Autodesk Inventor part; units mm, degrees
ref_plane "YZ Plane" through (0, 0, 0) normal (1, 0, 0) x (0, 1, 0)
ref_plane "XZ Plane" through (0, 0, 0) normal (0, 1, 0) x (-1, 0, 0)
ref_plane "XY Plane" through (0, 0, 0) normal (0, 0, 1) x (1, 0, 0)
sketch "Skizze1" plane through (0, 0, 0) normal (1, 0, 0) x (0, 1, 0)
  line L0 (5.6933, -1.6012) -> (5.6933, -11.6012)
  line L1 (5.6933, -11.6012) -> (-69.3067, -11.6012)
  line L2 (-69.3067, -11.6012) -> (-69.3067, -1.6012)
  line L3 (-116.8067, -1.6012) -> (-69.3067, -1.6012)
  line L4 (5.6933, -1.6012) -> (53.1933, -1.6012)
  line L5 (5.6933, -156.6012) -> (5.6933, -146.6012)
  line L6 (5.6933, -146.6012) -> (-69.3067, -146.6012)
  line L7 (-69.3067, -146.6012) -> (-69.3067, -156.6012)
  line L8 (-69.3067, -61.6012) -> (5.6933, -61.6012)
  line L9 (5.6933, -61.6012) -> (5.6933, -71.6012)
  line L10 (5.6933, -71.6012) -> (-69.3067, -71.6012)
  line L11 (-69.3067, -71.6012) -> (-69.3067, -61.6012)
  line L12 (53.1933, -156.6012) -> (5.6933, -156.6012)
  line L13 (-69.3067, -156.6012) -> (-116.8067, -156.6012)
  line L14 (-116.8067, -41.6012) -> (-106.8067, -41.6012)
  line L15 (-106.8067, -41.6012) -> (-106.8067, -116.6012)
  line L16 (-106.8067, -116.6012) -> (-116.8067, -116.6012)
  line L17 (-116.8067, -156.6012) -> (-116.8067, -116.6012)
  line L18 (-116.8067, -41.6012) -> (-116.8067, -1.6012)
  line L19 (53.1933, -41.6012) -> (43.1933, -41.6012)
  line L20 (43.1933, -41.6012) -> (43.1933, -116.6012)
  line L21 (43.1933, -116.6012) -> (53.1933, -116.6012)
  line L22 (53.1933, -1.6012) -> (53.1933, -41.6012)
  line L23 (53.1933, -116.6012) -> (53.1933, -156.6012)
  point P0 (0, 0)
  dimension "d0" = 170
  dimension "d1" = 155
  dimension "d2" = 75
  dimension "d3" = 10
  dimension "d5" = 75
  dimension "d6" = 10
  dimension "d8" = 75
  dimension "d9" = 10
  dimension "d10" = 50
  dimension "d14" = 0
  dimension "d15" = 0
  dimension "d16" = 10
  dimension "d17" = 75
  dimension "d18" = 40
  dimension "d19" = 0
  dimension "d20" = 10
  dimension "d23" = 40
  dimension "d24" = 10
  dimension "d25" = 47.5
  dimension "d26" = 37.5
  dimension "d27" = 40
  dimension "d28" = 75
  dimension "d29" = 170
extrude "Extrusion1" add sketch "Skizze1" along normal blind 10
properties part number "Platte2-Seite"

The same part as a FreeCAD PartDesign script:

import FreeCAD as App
import Part
import Sketcher
from FreeCAD import Vector


def add_polygon(sketch, points):
    """Adds a closed chain of lines whose ends are joined by coincident constraints."""
    first, n = sketch.GeometryCount, len(points)
    for a, b in zip(points, points[1:] + points[:1]):
        sketch.addGeometry(Part.LineSegment(App.Vector(*a, 0), App.Vector(*b, 0)), False)
    for i in range(n):
        sketch.addConstraint(Sketcher.Constraint("Coincident", first + i, 2, first + (i + 1) % n, 1))

doc = App.newDocument("Part")
body = doc.addObject("PartDesign::Body", "Body")

sketch1 = body.newObject("Sketcher::SketchObject", "Sketch")
sketch1.AttachmentSupport = (doc.getObject("YZ_Plane"), [""])
sketch1.MapMode = "FlatFace"
add_polygon(sketch1, [(53.1933, -1.6012), (5.6933, -1.6012), (5.6933, -11.6012), (-69.3067, -11.6012), (-69.3067, -1.6012), (-116.8067, -1.6012), (-116.8067, -41.6012), (-106.8067, -41.6012), (-106.8067, -116.6012), (-116.8067, -116.6012), (-116.8067, -156.6012), (-69.3067, -156.6012), (-69.3067, -146.6012), (5.6933, -146.6012), (5.6933, -156.6012), (53.1933, -156.6012), (53.1933, -116.6012), (43.1933, -116.6012), (43.1933, -41.6012), (53.1933, -41.6012)])
add_polygon(sketch1, [(-69.3067, -71.6012), (-69.3067, -61.6012), (5.6933, -61.6012), (5.6933, -71.6012)])
sketch1.addConstraint([
    Sketcher.Constraint("Horizontal", 0),
    Sketcher.Constraint("Vertical", 1),
    Sketcher.Constraint("Horizontal", 2),
    Sketcher.Constraint("Vertical", 3),
    Sketcher.Constraint("Horizontal", 4),
    Sketcher.Constraint("Vertical", 5),
    Sketcher.Constraint("Horizontal", 6),
    Sketcher.Constraint("Vertical", 7),
    Sketcher.Constraint("Horizontal", 8),
    Sketcher.Constraint("Vertical", 9),
    Sketcher.Constraint("Horizontal", 10),
    Sketcher.Constraint("Vertical", 11),
    Sketcher.Constraint("Horizontal", 12),
    Sketcher.Constraint("Vertical", 13),
    Sketcher.Constraint("Horizontal", 14),
    Sketcher.Constraint("Vertical", 15),
    Sketcher.Constraint("Horizontal", 16),
    Sketcher.Constraint("Vertical", 17),
    Sketcher.Constraint("Horizontal", 18),
    Sketcher.Constraint("Vertical", 19),
    Sketcher.Constraint("Vertical", 20),
    Sketcher.Constraint("Horizontal", 21),
    Sketcher.Constraint("Vertical", 22),
    Sketcher.Constraint("Horizontal", 23),
    Sketcher.Constraint("Horizontal", 0, 2, 3, 2),
    Sketcher.Constraint("Horizontal", 10, 2, 13, 2),
    Sketcher.Constraint("Horizontal", 8, 2, 15, 2),
    Sketcher.Constraint("Horizontal", 6, 2, 17, 2),
    Sketcher.Constraint("Vertical", 5, 2, 8, 2),
    Sketcher.Constraint("Vertical", 3, 2, 10, 2),
    Sketcher.Constraint("Vertical", 1, 2, 12, 2),
    Sketcher.Constraint("Vertical", 15, 2, 18, 2),
    Sketcher.Constraint("Vertical", 11, 2, 20, 2),
    Sketcher.Constraint("Vertical", 13, 2, 21, 2),
    Sketcher.Constraint("Equal", 0, 4),
    Sketcher.Constraint("Equal", 8, 16),
    Sketcher.Constraint("Equal", 18, 1),
    Sketcher.Constraint("Equal", 23, 7),
    Sketcher.Constraint("Equal", 5, 9),
    Sketcher.Constraint("Equal", 3, 11),
    Sketcher.Constraint("Equal", 13, 20),
    Sketcher.Constraint("DistanceX", 2, 2, 2, 1, 75.0),
    Sketcher.Constraint("DistanceX", 6, 1, 6, 2, 10.0),
    Sketcher.Constraint("DistanceY", 5, 2, 5, 1, 40.0),
    Sketcher.Constraint("DistanceX", 0, 2, 0, 1, 47.5),
    Sketcher.Constraint("DistanceY", 20, 2, 2, 2, 50.0),
    Sketcher.Constraint("DistanceX", -1, 1, 0, 2, 5.6933),
    Sketcher.Constraint("DistanceY", 0, 2, -1, 1, 1.6012),
])
pad1 = body.newObject("PartDesign::Pad", "Pad")
pad1.Profile = sketch1
pad1.Length = 10

doc.recompute()
